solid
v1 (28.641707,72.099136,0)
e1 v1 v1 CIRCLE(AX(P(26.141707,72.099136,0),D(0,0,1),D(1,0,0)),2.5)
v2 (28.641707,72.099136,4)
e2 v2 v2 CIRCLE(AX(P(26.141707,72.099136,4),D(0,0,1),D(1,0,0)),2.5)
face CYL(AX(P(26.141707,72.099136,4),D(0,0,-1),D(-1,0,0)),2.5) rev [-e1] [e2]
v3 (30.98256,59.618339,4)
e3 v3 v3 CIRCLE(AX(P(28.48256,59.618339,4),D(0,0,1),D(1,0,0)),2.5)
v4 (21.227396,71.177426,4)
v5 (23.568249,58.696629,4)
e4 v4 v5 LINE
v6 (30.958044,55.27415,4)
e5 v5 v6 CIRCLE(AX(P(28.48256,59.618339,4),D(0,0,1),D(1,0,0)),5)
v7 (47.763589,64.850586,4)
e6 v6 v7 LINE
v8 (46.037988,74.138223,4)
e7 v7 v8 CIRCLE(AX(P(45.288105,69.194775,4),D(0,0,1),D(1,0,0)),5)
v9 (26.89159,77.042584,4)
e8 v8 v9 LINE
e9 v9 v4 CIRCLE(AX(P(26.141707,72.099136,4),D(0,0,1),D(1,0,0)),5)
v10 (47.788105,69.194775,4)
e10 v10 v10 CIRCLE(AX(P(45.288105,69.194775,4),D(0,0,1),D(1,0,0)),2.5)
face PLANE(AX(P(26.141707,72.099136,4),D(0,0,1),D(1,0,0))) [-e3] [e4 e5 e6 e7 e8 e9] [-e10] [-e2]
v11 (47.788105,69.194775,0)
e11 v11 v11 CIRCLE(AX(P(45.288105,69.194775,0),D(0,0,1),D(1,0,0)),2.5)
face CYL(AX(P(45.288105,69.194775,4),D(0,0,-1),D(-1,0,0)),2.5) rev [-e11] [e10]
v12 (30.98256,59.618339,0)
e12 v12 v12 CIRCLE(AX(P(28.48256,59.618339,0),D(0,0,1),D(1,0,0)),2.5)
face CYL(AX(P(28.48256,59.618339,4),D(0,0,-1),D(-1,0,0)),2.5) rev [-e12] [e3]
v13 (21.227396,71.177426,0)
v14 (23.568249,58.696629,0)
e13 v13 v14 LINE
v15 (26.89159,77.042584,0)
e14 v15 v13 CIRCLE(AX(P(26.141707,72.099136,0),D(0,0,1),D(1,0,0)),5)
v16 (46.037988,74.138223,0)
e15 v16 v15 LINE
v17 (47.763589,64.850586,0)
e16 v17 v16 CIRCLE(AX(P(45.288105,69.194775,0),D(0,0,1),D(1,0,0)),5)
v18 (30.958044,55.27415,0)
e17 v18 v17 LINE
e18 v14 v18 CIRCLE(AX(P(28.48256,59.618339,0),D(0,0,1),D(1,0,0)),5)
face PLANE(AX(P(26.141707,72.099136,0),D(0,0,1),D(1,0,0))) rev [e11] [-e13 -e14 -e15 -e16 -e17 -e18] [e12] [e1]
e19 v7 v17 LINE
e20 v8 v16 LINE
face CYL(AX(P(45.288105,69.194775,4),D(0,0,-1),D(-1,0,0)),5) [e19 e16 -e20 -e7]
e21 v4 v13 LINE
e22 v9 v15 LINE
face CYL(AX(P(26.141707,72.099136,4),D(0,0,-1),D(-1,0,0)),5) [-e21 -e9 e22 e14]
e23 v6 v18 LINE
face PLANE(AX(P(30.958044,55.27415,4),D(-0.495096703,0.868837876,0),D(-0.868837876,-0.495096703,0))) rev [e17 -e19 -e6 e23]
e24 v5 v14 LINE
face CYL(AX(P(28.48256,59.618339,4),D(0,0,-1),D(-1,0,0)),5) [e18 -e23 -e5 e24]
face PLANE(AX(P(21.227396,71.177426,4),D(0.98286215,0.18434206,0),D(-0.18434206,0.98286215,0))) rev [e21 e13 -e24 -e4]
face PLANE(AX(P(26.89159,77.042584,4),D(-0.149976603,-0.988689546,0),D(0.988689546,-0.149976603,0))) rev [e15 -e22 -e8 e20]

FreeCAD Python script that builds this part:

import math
import FreeCAD as App
import Part
import Sketcher
from FreeCAD import Vector
Q = App.Units.Quantity

doc = App.newDocument("Part")
body = doc.addObject("PartDesign::Body", "Body")

# Sketch on XY plane
sketch1 = body.newObject("Sketcher::SketchObject", "Sketch")
sketch1.AttachmentSupport = (doc.getObject("XY_Plane"), [""])
sketch1.MapMode = "FlatFace"
sketch1.addGeometry(Part.LineSegment(Vector(46, 74.1, 0), Vector(26.9, 77, 0)), False)
sketch1.addGeometry(Part.ArcOfCircle(Part.Circle(Vector(26.1, 72.1, 0), Vector(0, 0, 1), 5), math.radians(81), math.radians(191)), False)
sketch1.addGeometry(Part.LineSegment(Vector(21.2, 71.2, 0), Vector(23.6, 58.7, 0)), False)
sketch1.addGeometry(Part.ArcOfCircle(Part.Circle(Vector(28.5, 59.6, 0), Vector(0, 0, 1), 5), math.radians(-169), math.radians(-60)), False)
sketch1.addGeometry(Part.LineSegment(Vector(31, 55.3, 0), Vector(47.8, 64.9, 0)), False)
sketch1.addGeometry(Part.ArcOfCircle(Part.Circle(Vector(45.3, 69.2, 0), Vector(0, 0, 1), 5), math.radians(-60), math.radians(81)), False)
sketch1.addGeometry(Part.Circle(Vector(28.5, 59.6, 0), Vector(0, 0, 1), 2.5), False)
sketch1.addGeometry(Part.Circle(Vector(45.3, 69.2, 0), Vector(0, 0, 1), 2.5), False)
sketch1.addGeometry(Part.Circle(Vector(26.1, 72.1, 0), Vector(0, 0, 1), 2.5), False)
sketch1.addConstraint(Sketcher.Constraint("Tangent", 0, 2, 1, 1))
sketch1.addConstraint(Sketcher.Constraint("Tangent", 1, 2, 2, 1))
sketch1.addConstraint(Sketcher.Constraint("Tangent", 2, 2, 3, 1))
sketch1.addConstraint(Sketcher.Constraint("Tangent", 3, 2, 4, 1))
sketch1.addConstraint(Sketcher.Constraint("Tangent", 4, 2, 5, 1))
sketch1.addConstraint(Sketcher.Constraint("Tangent", 5, 2, 0, 1))
sketch1.addConstraint(Sketcher.Constraint("Coincident", 6, 3, 3, 3))
sketch1.addConstraint(Sketcher.Constraint("Coincident", 7, 3, 5, 3))
sketch1.addConstraint(Sketcher.Constraint("Coincident", 8, 3, 1, 3))
sketch1.addConstraint(Sketcher.Constraint("Equal", 1, 3))
sketch1.addConstraint(Sketcher.Constraint("Equal", 3, 5))
sketch1.addConstraint(Sketcher.Constraint("Equal", 6, 7))
sketch1.addConstraint(Sketcher.Constraint("Equal", 7, 8))
sketch1.addConstraint(Sketcher.Constraint("Diameter", 6, Q("5 mm")))
sketch1.addConstraint(Sketcher.Constraint("Radius", 1, Q("5 mm")))
sketch1.addConstraint(Sketcher.Constraint("DistanceX", 1, 3, 5, 3, Q("19.146398 mm")))
sketch1.addConstraint(Sketcher.Constraint("DistanceX", 5, 2, 4, 2, Q("1.725601 mm")))
sketch1.addConstraint(Sketcher.Constraint("Distance", 0, Q("19.36543 mm")))
sketch1.addConstraint(Sketcher.Constraint("Distance", 2, Q("12.698421 mm")))
sketch1.addConstraint(Sketcher.Constraint("DistanceX", -1, 1, 3, 3, Q("28.48256 mm")))
sketch1.addConstraint(Sketcher.Constraint("DistanceY", -1, 1, 3, 3, Q("59.618339 mm")))
pad1 = body.newObject("PartDesign::Pad", "Pad")
pad1.Profile = sketch1
pad1.Length = 4

doc.recompute()
